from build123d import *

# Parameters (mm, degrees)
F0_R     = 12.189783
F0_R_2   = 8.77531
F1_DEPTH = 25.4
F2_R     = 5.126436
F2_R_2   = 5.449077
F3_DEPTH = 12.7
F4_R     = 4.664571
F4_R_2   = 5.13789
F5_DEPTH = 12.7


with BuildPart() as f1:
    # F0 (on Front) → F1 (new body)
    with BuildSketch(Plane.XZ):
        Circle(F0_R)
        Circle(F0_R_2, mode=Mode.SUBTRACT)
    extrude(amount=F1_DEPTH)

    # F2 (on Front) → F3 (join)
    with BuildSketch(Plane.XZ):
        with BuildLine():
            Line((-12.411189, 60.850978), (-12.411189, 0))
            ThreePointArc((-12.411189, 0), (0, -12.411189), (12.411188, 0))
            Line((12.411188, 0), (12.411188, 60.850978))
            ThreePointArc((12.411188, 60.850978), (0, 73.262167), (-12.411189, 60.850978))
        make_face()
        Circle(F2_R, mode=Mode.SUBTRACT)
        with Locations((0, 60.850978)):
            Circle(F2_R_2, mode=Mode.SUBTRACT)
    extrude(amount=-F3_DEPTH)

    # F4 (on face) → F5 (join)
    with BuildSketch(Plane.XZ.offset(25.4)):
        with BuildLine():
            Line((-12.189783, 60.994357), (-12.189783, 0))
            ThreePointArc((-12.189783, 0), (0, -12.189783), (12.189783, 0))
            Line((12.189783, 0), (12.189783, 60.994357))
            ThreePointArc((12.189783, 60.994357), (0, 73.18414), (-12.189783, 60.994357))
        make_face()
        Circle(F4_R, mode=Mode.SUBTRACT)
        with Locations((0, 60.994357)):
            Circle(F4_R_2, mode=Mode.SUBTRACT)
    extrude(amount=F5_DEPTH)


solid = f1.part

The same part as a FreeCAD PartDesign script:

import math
import FreeCAD as App
import Part
import Sketcher

V = App.Vector

doc = App.newDocument("Part")
params = doc.addObject("Spreadsheet::Sheet", "Params")
for row, (alias, value) in enumerate([
    ("pad1_length", "1 in"),
    ("pad2_length", "0.5 in"),
    ("pad3_length", "0.5 in"),
], start=1):
    params.set(f"A{row}", alias)
    params.set(f"B{row}", "=" + value)
    params.setAlias(f"B{row}", alias)

body = doc.addObject("PartDesign::Body", "Body")

sketch1 = body.newObject("Sketcher::SketchObject", "Sketch")
sketch1.AttachmentSupport = (doc.getObject("XZ_Plane"), [""])
sketch1.MapMode = "FlatFace"
sketch1.addGeometry([
    Part.Circle(V(0, 0, 0), V(0, 0, 1), 12.189783),
    Part.Circle(V(0, 0, 0), V(0, 0, 1), 8.77531),
], False)
sketch1.addConstraint([
    Sketcher.Constraint("Coincident", 0, 3, -1, 1),
    Sketcher.Constraint("Coincident", 1, 3, -1, 1),
    Sketcher.Constraint("Diameter", 1, 17.55062),
    Sketcher.Constraint("Diameter", 0, 24.379566),
])
pad1 = body.newObject("PartDesign::Pad", "Pad")
pad1.Profile = sketch1
pad1.setExpression("Length", "Params.pad1_length")

sketch2 = body.newObject("Sketcher::SketchObject", "Sketch001")
sketch2.AttachmentSupport = (doc.getObject("XZ_Plane"), [""])
sketch2.MapMode = "FlatFace"
sketch2.addGeometry([
    Part.LineSegment(V(-12.411189, 60.850978, 0), V(-12.411189, 0, 0)),
    Part.ArcOfCircle(Part.Circle(V(0, 0, 0), V(0, 0, 1), 12.411188), math.radians(179.999998), math.radians(360.000002)),
    Part.LineSegment(V(12.411188, 0, 0), V(12.411188, 60.850978, 0)),
    Part.ArcOfCircle(Part.Circle(V(0, 60.850978, 0), V(0, 0, 1), 12.411188), math.radians(-0.000002), math.radians(180.000002)),
    Part.Circle(V(0, 0, 0), V(0, 0, 1), 5.126436),
    Part.Circle(V(0, 60.850978, 0), V(0, 0, 1), 5.449077),
], False)
sketch2.addConstraint([
    Sketcher.Constraint("Tangent", 0, 2, 1, 1),
    Sketcher.Constraint("Tangent", 1, 2, 2, 1),
    Sketcher.Constraint("Tangent", 2, 2, 3, 1),
    Sketcher.Constraint("Tangent", 3, 2, 0, 1),
    Sketcher.Constraint("Vertical", 0),
    Sketcher.Constraint("Vertical", 2),
    Sketcher.Constraint("Coincident", 1, 3, -1, 1),
    Sketcher.Constraint("Coincident", 4, 3, -1, 1),
    Sketcher.Constraint("Coincident", 5, 3, 3, 3),
    Sketcher.Constraint("Radius", 1, 12.411188),
    Sketcher.Constraint("Diameter", 4, 10.252872),
    Sketcher.Constraint("Diameter", 5, 10.898154),
    Sketcher.Constraint("DistanceY", 0, 2, 0, 1, 60.850978),
])
pad2 = body.newObject("PartDesign::Pad", "Pad001")
pad2.Profile = sketch2
pad2.setExpression("Length", "Params.pad2_length")
pad2.Reversed = True

sketch3 = body.newObject("Sketcher::SketchObject", "Sketch002")
sketch3.AttachmentSupport = (doc.getObject("XZ_Plane"), [""])
sketch3.MapMode = "FlatFace"
sketch3.AttachmentOffset = App.Placement(V(0, 0, 1 * 25.4), App.Rotation())
sketch3.addGeometry([
    Part.LineSegment(V(-12.189783, 60.994357, 0), V(-12.189783, 0, 0)),
    Part.ArcOfCircle(Part.Circle(V(0, 0, 0), V(0, 0, 1), 12.189783), math.radians(180), math.radians(360)),
    Part.LineSegment(V(12.189783, 0, 0), V(12.189783, 60.994357, 0)),
    Part.ArcOfCircle(Part.Circle(V(0, 60.994357, 0), V(0, 0, 1), 12.189783), math.radians(0), math.radians(180)),
    Part.Circle(V(0, 0, 0), V(0, 0, 1), 4.664571),
    Part.Circle(V(0, 60.994357, 0), V(0, 0, 1), 5.13789),
], False)
sketch3.addConstraint([
    Sketcher.Constraint("Tangent", 0, 2, 1, 1),
    Sketcher.Constraint("Tangent", 1, 2, 2, 1),
    Sketcher.Constraint("Tangent", 2, 2, 3, 1),
    Sketcher.Constraint("Tangent", 3, 2, 0, 1),
    Sketcher.Constraint("Vertical", 0),
    Sketcher.Constraint("Vertical", 2),
    Sketcher.Constraint("Coincident", 1, 3, -1, 1),
    Sketcher.Constraint("Coincident", 4, 3, -1, 1),
    Sketcher.Constraint("Coincident", 5, 3, 3, 3),
    Sketcher.Constraint("Diameter", 4, 9.329142),
    Sketcher.Constraint("Diameter", 5, 10.27578),
    Sketcher.Constraint("Radius", 1, 12.189783),
    Sketcher.Constraint("DistanceY", 0, 2, 0, 1, 60.994357),
])
pad3 = body.newObject("PartDesign::Pad", "Pad002")
pad3.Profile = sketch3
pad3.setExpression("Length", "Params.pad3_length")

doc.recompute()
